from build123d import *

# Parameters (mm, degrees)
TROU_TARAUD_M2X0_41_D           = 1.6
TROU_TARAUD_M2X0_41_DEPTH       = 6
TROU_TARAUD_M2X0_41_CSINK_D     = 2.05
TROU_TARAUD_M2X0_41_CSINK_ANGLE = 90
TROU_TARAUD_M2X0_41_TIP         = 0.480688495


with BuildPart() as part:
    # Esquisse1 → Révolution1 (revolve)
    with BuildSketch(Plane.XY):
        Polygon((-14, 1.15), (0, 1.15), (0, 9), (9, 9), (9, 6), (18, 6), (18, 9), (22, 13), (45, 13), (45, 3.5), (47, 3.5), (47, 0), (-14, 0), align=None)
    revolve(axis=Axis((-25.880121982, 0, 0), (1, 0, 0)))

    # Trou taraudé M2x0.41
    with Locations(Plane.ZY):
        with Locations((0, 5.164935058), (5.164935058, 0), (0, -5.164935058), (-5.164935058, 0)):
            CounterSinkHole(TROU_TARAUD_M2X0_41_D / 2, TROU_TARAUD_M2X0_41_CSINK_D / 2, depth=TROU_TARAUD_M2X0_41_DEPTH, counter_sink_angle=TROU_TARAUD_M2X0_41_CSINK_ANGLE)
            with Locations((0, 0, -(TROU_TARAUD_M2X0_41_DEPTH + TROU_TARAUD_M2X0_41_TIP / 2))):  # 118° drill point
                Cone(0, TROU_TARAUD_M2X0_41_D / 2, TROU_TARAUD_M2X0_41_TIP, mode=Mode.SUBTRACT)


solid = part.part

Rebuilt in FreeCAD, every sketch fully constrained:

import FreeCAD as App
import Part
import Sketcher
from FreeCAD import Vector
Q = App.Units.Quantity


def add_polygon(sketch, points):
    """Adds a closed chain of lines whose ends are joined by coincident constraints."""
    first, n = sketch.GeometryCount, len(points)
    for a, b in zip(points, points[1:] + points[:1]):
        sketch.addGeometry(Part.LineSegment(App.Vector(*a, 0), App.Vector(*b, 0)), False)
    for i in range(n):
        sketch.addConstraint(Sketcher.Constraint("Coincident", first + i, 2, first + (i + 1) % n, 1))

doc = App.newDocument("Part")
body = doc.addObject("PartDesign::Body", "Body")

# Sketch on XY plane
sketch1 = body.newObject("Sketcher::SketchObject", "Sketch")
sketch1.AttachmentSupport = (doc.getObject("XY_Plane"), [""])
sketch1.MapMode = "FlatFace"
add_polygon(sketch1, [(0, 1.15), (-14, 1.15), (-14, 0), (47, 0), (47, 3.5), (45, 3.5), (45, 13), (22, 13), (18, 9), (18, 6), (9, 6), (9, 9), (0, 9)])  # lines 0-12
sketch1.addConstraint([
    Sketcher.Constraint("Horizontal", 0),
    Sketcher.Constraint("Vertical", 1),
    Sketcher.Constraint("Horizontal", 2),
    Sketcher.Constraint("Vertical", 3),
    Sketcher.Constraint("Horizontal", 4),
    Sketcher.Constraint("Vertical", 5),
    Sketcher.Constraint("Horizontal", 6),
    Sketcher.Constraint("Vertical", 8),
    Sketcher.Constraint("Horizontal", 9),
    Sketcher.Constraint("Vertical", 10),
    Sketcher.Constraint("Horizontal", 11),
    Sketcher.Constraint("Vertical", 12),
    Sketcher.Constraint("PointOnObject", 1, 2, -1),
    Sketcher.Constraint("PointOnObject", 11, 2, -2),
    Sketcher.Constraint("Horizontal", 7, 2, 10, 2),
    Sketcher.Constraint("Equal", 9, 11),
    Sketcher.Constraint("DistanceX", 0, 2, 0, 1, 14.0),
    Sketcher.Constraint("DistanceX", 2, 1, 2, 2, 61.0),
    Sketcher.Constraint("DistanceX", 4, 2, 4, 1, 2.0),
    Sketcher.Constraint("DistanceX", 6, 2, 6, 1, 23.0),
    Sketcher.Constraint("DistanceX", 9, 2, 9, 1, 9.0),
    Sketcher.Constraint("DistanceY", 8, 2, 8, 1, 3.0),
    Sketcher.Constraint("Angle", 7, Q("-135 deg")),
    Sketcher.Constraint("DistanceY", 3, 1, 3, 2, 3.5),
    Sketcher.Constraint("DistanceY", 5, 1, 5, 2, 9.5),
    Sketcher.Constraint("DistanceY", 1, 2, 1, 1, 1.15),
])
revolution = body.newObject("PartDesign::Revolution", "Revolution")
revolution.Profile = sketch1
revolution.ReferenceAxis = (sketch1, ["H_Axis"])
revolution.Angle = 360

# Sketch on YZ plane
sketch2 = body.newObject("Sketcher::SketchObject", "Sketch001")
sketch2.AttachmentSupport = (doc.getObject("YZ_Plane"), [""])
sketch2.MapMode = "FlatFace"
sketch2.addGeometry([
    Part.Circle(Vector(5.164935, 0, 0), Vector(0, 0, 1), 0.8),
    Part.Circle(Vector(0, 5.164935, 0), Vector(0, 0, 1), 0.8),
    Part.Circle(Vector(-5.164935, 0, 0), Vector(0, 0, 1), 0.8),
    Part.Circle(Vector(0, -5.164935, 0), Vector(0, 0, 1), 0.8),
], False)
sketch2.addConstraint([
    Sketcher.Constraint("Equal", 0, 1),
    Sketcher.Constraint("Equal", 1, 2),
    Sketcher.Constraint("Equal", 2, 3),
    Sketcher.Constraint("Symmetric", 0, 3, 2, 3, -1, 1),
    Sketcher.Constraint("Symmetric", 1, 3, 3, 3, -1, 1),
    Sketcher.Constraint("PointOnObject", 0, 3, -1),
    Sketcher.Constraint("PointOnObject", 1, 3, -2),
    Sketcher.Constraint("Diameter", 0, 1.6),
    Sketcher.Constraint("DistanceX", 2, 3, 0, 3, 10.32987),
    Sketcher.Constraint("DistanceY", 3, 3, 1, 3, 10.32987),
])
doc.recompute()
hole = body.newObject("PartDesign::Hole", "Hole")
hole.Profile = sketch2
hole.ThreadType = "None"
hole.Diameter = 1.6
hole.DepthType = "Dimension"
hole.Depth = 6
hole.DrillPoint = "Angled"
hole.DrillPointAngle = 118
hole.HoleCutType = "Countersink"
hole.HoleCutDiameter = 2.05
hole.HoleCutCountersinkAngle = 90
hole.Reversed = True

doc.recompute()
